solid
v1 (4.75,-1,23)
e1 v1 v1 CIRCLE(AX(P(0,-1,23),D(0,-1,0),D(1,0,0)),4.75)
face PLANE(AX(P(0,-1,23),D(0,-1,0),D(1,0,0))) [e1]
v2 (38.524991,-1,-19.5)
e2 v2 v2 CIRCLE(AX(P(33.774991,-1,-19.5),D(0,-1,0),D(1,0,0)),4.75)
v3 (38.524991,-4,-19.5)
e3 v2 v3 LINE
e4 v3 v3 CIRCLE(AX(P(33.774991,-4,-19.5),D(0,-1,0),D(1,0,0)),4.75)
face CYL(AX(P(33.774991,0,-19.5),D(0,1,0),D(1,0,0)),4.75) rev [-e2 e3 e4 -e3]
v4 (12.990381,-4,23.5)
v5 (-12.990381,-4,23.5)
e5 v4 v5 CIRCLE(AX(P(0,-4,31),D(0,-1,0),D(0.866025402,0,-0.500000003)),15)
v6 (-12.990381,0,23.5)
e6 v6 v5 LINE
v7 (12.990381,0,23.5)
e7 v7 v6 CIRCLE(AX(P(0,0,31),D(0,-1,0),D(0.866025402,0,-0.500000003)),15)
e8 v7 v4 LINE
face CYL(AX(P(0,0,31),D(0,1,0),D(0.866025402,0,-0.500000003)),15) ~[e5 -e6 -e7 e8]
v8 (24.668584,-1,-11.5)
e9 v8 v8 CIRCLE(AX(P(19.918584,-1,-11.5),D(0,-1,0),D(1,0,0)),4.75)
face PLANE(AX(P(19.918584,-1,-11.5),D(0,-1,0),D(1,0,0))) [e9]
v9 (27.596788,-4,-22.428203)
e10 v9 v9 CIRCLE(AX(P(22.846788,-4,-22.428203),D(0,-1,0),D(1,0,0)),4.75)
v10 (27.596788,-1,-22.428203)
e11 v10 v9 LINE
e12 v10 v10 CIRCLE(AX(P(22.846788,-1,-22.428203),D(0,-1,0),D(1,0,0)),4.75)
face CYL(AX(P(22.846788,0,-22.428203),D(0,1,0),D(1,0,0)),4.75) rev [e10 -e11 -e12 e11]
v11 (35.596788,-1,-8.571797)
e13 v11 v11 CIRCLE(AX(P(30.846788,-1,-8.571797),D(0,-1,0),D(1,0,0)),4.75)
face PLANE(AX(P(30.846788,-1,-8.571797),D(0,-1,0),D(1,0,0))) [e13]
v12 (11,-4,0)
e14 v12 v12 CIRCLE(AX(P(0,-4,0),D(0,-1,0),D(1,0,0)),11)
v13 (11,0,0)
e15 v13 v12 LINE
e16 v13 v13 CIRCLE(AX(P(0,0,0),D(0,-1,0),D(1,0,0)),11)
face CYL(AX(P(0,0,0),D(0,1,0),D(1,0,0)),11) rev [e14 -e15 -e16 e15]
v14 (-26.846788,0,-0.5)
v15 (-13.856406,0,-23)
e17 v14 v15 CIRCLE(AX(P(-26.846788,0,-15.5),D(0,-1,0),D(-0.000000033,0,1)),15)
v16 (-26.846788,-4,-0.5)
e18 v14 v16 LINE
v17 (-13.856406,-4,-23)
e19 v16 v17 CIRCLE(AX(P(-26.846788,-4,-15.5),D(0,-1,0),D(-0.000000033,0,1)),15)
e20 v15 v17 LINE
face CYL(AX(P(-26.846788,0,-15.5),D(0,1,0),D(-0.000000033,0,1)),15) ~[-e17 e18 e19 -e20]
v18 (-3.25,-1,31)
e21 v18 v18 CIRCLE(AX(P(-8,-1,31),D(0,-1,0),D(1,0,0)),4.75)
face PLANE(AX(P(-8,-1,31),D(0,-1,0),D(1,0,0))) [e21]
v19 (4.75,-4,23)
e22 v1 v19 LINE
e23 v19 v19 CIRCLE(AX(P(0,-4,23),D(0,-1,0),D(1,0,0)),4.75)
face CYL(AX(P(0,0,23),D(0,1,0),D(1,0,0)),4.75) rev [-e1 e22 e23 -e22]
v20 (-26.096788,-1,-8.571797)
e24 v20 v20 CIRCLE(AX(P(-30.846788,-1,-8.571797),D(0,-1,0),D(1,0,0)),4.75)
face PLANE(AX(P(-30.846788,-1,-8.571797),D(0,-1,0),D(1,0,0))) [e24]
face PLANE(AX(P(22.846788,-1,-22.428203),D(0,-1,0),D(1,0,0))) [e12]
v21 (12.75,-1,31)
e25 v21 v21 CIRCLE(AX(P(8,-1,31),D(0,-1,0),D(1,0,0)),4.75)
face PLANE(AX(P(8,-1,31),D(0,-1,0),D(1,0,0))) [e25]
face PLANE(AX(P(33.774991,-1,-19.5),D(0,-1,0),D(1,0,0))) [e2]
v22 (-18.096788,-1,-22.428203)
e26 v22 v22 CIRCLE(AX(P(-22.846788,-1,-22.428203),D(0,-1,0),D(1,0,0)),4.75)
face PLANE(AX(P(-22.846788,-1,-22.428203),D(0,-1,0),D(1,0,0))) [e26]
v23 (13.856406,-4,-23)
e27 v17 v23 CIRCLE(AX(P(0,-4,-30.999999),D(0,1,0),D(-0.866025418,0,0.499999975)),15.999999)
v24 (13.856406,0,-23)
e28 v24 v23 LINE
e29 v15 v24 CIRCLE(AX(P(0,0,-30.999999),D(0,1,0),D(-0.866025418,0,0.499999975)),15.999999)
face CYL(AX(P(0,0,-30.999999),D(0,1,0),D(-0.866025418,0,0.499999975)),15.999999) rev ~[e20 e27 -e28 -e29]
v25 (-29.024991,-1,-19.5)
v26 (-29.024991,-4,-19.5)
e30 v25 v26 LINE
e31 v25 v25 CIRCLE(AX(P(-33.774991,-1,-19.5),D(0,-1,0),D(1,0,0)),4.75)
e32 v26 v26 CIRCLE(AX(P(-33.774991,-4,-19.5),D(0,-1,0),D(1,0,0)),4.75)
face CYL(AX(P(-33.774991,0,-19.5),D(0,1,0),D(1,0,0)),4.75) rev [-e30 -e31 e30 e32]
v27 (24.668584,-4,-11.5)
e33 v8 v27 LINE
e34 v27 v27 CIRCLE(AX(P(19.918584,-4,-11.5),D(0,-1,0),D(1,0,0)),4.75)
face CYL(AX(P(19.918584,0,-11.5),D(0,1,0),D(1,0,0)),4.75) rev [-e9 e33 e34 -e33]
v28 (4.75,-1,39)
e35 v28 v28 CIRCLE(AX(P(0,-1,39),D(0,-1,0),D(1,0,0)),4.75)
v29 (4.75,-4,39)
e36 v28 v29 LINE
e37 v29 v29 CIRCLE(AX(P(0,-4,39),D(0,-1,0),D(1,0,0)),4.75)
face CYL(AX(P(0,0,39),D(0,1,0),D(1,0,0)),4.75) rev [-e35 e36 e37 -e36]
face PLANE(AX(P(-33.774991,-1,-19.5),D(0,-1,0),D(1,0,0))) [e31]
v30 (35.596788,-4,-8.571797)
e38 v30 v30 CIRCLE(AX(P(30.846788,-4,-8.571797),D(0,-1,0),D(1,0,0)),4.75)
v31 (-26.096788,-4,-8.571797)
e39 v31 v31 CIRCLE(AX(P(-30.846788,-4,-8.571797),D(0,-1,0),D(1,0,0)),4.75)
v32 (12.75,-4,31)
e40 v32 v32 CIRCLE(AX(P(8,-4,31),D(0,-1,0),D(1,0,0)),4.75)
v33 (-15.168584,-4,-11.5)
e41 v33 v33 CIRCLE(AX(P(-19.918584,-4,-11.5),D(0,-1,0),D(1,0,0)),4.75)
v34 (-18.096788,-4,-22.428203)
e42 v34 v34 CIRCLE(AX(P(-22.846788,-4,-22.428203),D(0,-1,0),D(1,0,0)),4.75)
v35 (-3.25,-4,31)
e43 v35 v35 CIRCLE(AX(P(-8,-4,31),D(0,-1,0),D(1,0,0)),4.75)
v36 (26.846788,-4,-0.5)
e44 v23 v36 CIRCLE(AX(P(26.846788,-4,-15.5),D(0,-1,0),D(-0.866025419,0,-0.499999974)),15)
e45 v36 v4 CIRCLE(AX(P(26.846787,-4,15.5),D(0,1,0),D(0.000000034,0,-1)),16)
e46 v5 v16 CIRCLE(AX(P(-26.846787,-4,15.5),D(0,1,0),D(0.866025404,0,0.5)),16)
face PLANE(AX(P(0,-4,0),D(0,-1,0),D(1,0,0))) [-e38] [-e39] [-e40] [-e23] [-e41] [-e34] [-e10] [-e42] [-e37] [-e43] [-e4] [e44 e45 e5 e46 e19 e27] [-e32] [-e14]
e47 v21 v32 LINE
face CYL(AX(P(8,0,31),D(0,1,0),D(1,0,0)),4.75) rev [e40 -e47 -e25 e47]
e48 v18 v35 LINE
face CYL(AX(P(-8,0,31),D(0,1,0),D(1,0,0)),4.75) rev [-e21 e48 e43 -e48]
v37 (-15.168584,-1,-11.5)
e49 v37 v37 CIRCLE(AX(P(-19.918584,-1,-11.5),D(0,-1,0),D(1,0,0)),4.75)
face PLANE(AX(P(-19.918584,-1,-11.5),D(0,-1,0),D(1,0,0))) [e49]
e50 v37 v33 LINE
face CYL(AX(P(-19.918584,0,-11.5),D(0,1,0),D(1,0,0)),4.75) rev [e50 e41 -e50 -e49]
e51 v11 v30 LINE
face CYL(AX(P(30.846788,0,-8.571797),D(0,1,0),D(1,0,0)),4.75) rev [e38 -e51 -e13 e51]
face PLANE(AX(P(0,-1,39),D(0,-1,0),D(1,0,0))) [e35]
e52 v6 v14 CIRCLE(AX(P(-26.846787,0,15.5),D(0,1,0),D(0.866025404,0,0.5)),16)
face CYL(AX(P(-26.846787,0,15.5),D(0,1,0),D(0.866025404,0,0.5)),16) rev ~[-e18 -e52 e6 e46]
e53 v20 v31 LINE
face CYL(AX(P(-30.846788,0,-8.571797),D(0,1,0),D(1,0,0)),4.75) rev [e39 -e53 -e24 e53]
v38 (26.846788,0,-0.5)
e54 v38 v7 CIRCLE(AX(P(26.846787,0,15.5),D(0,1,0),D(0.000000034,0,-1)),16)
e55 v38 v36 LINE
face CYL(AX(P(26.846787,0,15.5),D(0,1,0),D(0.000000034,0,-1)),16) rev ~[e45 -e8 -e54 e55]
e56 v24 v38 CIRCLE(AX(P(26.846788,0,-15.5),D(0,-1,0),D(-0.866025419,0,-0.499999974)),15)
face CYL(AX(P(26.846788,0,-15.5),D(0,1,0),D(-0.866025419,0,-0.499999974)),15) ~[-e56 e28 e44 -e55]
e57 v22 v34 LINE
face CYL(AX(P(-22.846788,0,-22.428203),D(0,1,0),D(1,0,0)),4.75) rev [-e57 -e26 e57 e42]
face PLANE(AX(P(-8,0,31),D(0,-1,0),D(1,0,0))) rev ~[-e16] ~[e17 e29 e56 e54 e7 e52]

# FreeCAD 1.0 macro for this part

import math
import FreeCAD as App
import Part
import Sketcher
from FreeCAD import Vector
Q = App.Units.Quantity

doc = App.newDocument("Part")
params = doc.addObject("Spreadsheet::Sheet", "Params")
for row, (alias, value) in enumerate([
    ("sketch1_diameter", "22 mm"),
    ("sketch1_radius", "16 mm"),
    ("sketch1_radius2", "15 mm"),
    ("sketch1_diameter2", "9.5 mm"),
    ("pad1_length", "4 mm"),
    ("sketch2_diameter", "9.5 mm"),
    ("pad2_length", "1 mm"),
], start=1):
    params.set(f"A{row}", alias)
    params.set(f"B{row}", "=" + value)
    params.setAlias(f"B{row}", alias)

body = doc.addObject("PartDesign::Body", "Body")

# Sketch on XZ plane
sketch1 = doc.addObject("Sketcher::SketchObject", "Sketch")
body.addObject(sketch1)
sketch1.AttachmentSupport = (doc.XZ_Plane, [""])
sketch1.MapMode = "FlatFace"
sketch1.addGeometry([
    Part.ArcOfCircle(Part.Circle(Vector(-26.8, 15.5, 0), Vector(0, 0, 1), 16), math.radians(-90), math.radians(30)),  # 0
    Part.ArcOfCircle(Part.Circle(Vector(-26.8, -15.5, 0), Vector(0, 0, 1), 15), math.radians(90), math.radians(330)),  # 1
    Part.ArcOfCircle(Part.Circle(Vector(0, -31, 0), Vector(0, 0, 1), 16), math.radians(30), math.radians(150)),  # 2
    Part.ArcOfCircle(Part.Circle(Vector(26.8, -15.5, 0), Vector(0, 0, 1), 15), math.radians(-150), math.radians(90)),  # 3
    Part.ArcOfCircle(Part.Circle(Vector(26.8, 15.5, 0), Vector(0, 0, 1), 16), math.radians(150), math.radians(270)),  # 4
    Part.ArcOfCircle(Part.Circle(Vector(0, 31, 0), Vector(0, 0, 1), 15), math.radians(-30), math.radians(210)),  # 5
    Part.Circle(Vector(-33.8, -19.5, 0), Vector(0, 0, 1), 4.8),  # 6
    Part.Circle(Vector(-22.8, -22.4, 0), Vector(0, 0, 1), 4.8),  # 7
    Part.Circle(Vector(-19.9, -11.5, 0), Vector(0, 0, 1), 4.8),  # 8
    Part.Circle(Vector(-30.8, -8.6, 0), Vector(0, 0, 1), 4.8),  # 9
    Part.Circle(Vector(22.8, -22.4, 0), Vector(0, 0, 1), 4.8),  # 10
    Part.Circle(Vector(33.8, -19.5, 0), Vector(0, 0, 1), 4.8),  # 11
    Part.Circle(Vector(19.9, -11.5, 0), Vector(0, 0, 1), 4.8),  # 12
    Part.Circle(Vector(0, 0, 0), Vector(0, 0, 1), 11),  # 13
    Part.Circle(Vector(30.8, -8.6, 0), Vector(0, 0, 1), 4.8),  # 14
    Part.Circle(Vector(-8, 31, 0), Vector(0, 0, 1), 4.8),  # 15
    Part.Circle(Vector(0, 23, 0), Vector(0, 0, 1), 4.8),  # 16
    Part.Circle(Vector(8, 31, 0), Vector(0, 0, 1), 4.8),  # 17
    Part.Circle(Vector(0, 39, 0), Vector(0, 0, 1), 4.8),  # 18
], False)
sketch1.addConstraint([
    Sketcher.Constraint("Tangent", 0, 1, 1, 1),
    Sketcher.Constraint("Tangent", 1, 2, 2, 2),
    Sketcher.Constraint("Tangent", 2, 1, 3, 1),
    Sketcher.Constraint("Tangent", 3, 2, 4, 2),
    Sketcher.Constraint("Tangent", 4, 1, 5, 1),
    Sketcher.Constraint("Tangent", 5, 2, 0, 2),
    Sketcher.Constraint("Coincident", 13, 3, -1, 1),
    Sketcher.Constraint("Equal", 0, 2),
    Sketcher.Constraint("Equal", 1, 3),
    Sketcher.Constraint("Equal", 2, 4),
    Sketcher.Constraint("Equal", 3, 5),
    Sketcher.Constraint("Equal", 6, 7),
    Sketcher.Constraint("Equal", 7, 8),
    Sketcher.Constraint("Equal", 8, 9),
    Sketcher.Constraint("Equal", 9, 10),
    Sketcher.Constraint("Equal", 10, 11),
    Sketcher.Constraint("Equal", 11, 12),
    Sketcher.Constraint("Equal", 12, 14),
    Sketcher.Constraint("Equal", 14, 15),
    Sketcher.Constraint("Equal", 15, 16),
    Sketcher.Constraint("Equal", 16, 17),
    Sketcher.Constraint("Equal", 17, 18),
    Sketcher.Constraint("Symmetric", 0, 3, 3, 3, -1, 1),
    Sketcher.Constraint("Symmetric", 1, 3, 3, 3, -2),
    Sketcher.Constraint("Symmetric", 7, 3, 10, 3, -2),
    Sketcher.Constraint("Symmetric", 6, 3, 11, 3, -2),
    Sketcher.Constraint("Symmetric", 8, 3, 12, 3, -2),
    Sketcher.Constraint("Symmetric", 9, 3, 14, 3, -2),
    Sketcher.Constraint("Symmetric", 15, 3, 17, 3, -2),
    Sketcher.Constraint("PointOnObject", 5, 3, -2),
    Sketcher.Constraint("PointOnObject", 16, 3, -2),
    Sketcher.Constraint("PointOnObject", 18, 3, -2),
    Sketcher.Constraint("Horizontal", 5, 3, 15, 3),
    Sketcher.Constraint("Diameter", 13, Q("22 mm")),
    Sketcher.Constraint("Radius", 0, Q("16 mm")),
    Sketcher.Constraint("Radius", 1, Q("15 mm")),
    Sketcher.Constraint("Diameter", 6, Q("9.5 mm")),
    Sketcher.Constraint("DistanceY", 2, 3, -1, 1, Q("30.999999 mm")),
    Sketcher.Constraint("DistanceX", 15, 3, -1, 1, Q("8 mm")),
    Sketcher.Constraint("DistanceY", -1, 1, 16, 3, Q("23 mm")),
    Sketcher.Constraint("DistanceY", -1, 1, 18, 3, Q("39 mm")),
    Sketcher.Constraint("DistanceY", 6, 3, 1, 3, Q("4 mm")),
    Sketcher.Constraint("DistanceX", 1, 3, 7, 3, Q("4 mm")),
    Sketcher.Constraint("DistanceY", 1, 3, 8, 3, Q("4 mm")),
    Sketcher.Constraint("DistanceX", 9, 3, 1, 3, Q("4 mm")),
    Sketcher.Constraint("DistanceX", 6, 3, -1, 1, Q("33.774991 mm")),
    Sketcher.Constraint("DistanceX", 8, 3, 1, 2, Q("6.062178 mm")),
    Sketcher.Constraint("DistanceY", 7, 3, -1, 1, Q("22.428203 mm")),
    Sketcher.Constraint("DistanceY", 9, 3, -1, 1, Q("8.571797 mm")),
])
sketch1.setExpression("Constraints[33]", "Params.sketch1_diameter")
sketch1.setExpression("Constraints[34]", "Params.sketch1_radius")
sketch1.setExpression("Constraints[35]", "Params.sketch1_radius2")
sketch1.setExpression("Constraints[36]", "Params.sketch1_diameter2")
pad1 = doc.addObject("PartDesign::Pad", "Pad")
body.addObject(pad1)
pad1.Profile = sketch1
pad1.setExpression("Length", "Params.pad1_length")

# Sketch on XZ plane
sketch2 = doc.addObject("Sketcher::SketchObject", "Sketch001")
body.addObject(sketch2)
sketch2.AttachmentSupport = (doc.XZ_Plane, [""])
sketch2.MapMode = "FlatFace"
sketch2.addGeometry([
    Part.Circle(Vector(-8, 31, 0), Vector(0, 0, 1), 4.8),  # 0
    Part.Circle(Vector(0, 39, 0), Vector(0, 0, 1), 4.8),  # 1
    Part.Circle(Vector(8, 31, 0), Vector(0, 0, 1), 4.8),  # 2
    Part.Circle(Vector(0, 23, 0), Vector(0, 0, 1), 4.8),  # 3
    Part.Circle(Vector(-30.8, -8.6, 0), Vector(0, 0, 1), 4.8),  # 4
    Part.Circle(Vector(-33.8, -19.5, 0), Vector(0, 0, 1), 4.8),  # 5
    Part.Circle(Vector(-22.8, -22.4, 0), Vector(0, 0, 1), 4.8),  # 6
    Part.Circle(Vector(-19.9, -11.5, 0), Vector(0, 0, 1), 4.8),  # 7
    Part.Circle(Vector(22.8, -22.4, 0), Vector(0, 0, 1), 4.8),  # 8
    Part.Circle(Vector(19.9, -11.5, 0), Vector(0, 0, 1), 4.8),  # 9
    Part.Circle(Vector(30.8, -8.6, 0), Vector(0, 0, 1), 4.8),  # 10
    Part.Circle(Vector(33.8, -19.5, 0), Vector(0, 0, 1), 4.8),  # 11
], False)
sketch2.addConstraint([
    Sketcher.Constraint("Equal", 0, 1),
    Sketcher.Constraint("Equal", 1, 2),
    Sketcher.Constraint("Equal", 2, 3),
    Sketcher.Constraint("Equal", 3, 4),
    Sketcher.Constraint("Equal", 4, 5),
    Sketcher.Constraint("Equal", 5, 6),
    Sketcher.Constraint("Equal", 6, 7),
    Sketcher.Constraint("Equal", 7, 8),
    Sketcher.Constraint("Equal", 8, 9),
    Sketcher.Constraint("Equal", 9, 10),
    Sketcher.Constraint("Equal", 10, 11),
    Sketcher.Constraint("Symmetric", 0, 3, 2, 3, -2),
    Sketcher.Constraint("Symmetric", 6, 3, 8, 3, -2),
    Sketcher.Constraint("Symmetric", 7, 3, 9, 3, -2),
    Sketcher.Constraint("Symmetric", 4, 3, 10, 3, -2),
    Sketcher.Constraint("Symmetric", 5, 3, 11, 3, -2),
    Sketcher.Constraint("PointOnObject", 1, 3, -2),
    Sketcher.Constraint("PointOnObject", 3, 3, -2),
    Sketcher.Constraint("Diameter", 0, Q("9.5 mm")),
    Sketcher.Constraint("DistanceX", 0, 3, -1, 1, Q("8 mm")),
    Sketcher.Constraint("DistanceY", -1, 1, 0, 3, Q("31 mm")),
    Sketcher.Constraint("DistanceY", -1, 1, 1, 3, Q("39 mm")),
    Sketcher.Constraint("DistanceY", -1, 1, 3, 3, Q("23 mm")),
    Sketcher.Constraint("DistanceX", 4, 3, 6, 3, Q("8 mm")),
    Sketcher.Constraint("DistanceY", 5, 3, 7, 3, Q("8 mm")),
    Sketcher.Constraint("DistanceY", 5, 3, -1, 1, Q("19.5 mm")),
    Sketcher.Constraint("DistanceX", 4, 3, -1, 1, Q("30.846788 mm")),
    Sketcher.Constraint("DistanceX", 5, 3, -1, 1, Q("33.774991 mm")),
    Sketcher.Constraint("DistanceY", 4, 3, -1, 1, Q("8.571797 mm")),
    Sketcher.Constraint("DistanceY", 6, 3, -1, 1, Q("22.428203 mm")),
    Sketcher.Constraint("DistanceX", 7, 3, -1, 1, Q("19.918584 mm")),
])
sketch2.setExpression("Constraints[18]", "Params.sketch2_diameter")
pad2 = doc.addObject("PartDesign::Pad", "Pad001")
body.addObject(pad2)
pad2.Profile = sketch2
pad2.setExpression("Length", "Params.pad2_length")

doc.recompute()
